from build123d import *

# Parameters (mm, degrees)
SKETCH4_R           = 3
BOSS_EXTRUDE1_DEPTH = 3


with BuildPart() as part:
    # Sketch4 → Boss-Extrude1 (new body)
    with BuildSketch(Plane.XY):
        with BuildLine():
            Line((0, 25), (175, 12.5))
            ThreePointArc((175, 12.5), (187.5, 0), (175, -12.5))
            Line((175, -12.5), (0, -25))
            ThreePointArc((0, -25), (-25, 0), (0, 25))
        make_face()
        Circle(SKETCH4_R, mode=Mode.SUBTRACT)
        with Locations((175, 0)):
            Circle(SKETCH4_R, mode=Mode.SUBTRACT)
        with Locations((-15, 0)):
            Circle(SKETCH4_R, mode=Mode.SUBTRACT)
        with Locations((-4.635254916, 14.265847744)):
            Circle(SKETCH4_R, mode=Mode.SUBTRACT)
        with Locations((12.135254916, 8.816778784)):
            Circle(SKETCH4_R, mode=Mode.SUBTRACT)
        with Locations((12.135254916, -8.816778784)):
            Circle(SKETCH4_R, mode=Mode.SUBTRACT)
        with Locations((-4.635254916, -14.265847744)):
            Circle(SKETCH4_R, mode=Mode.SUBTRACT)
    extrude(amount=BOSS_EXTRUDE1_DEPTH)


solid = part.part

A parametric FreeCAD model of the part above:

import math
import FreeCAD as App
import Part
import Sketcher

doc = App.newDocument("Part")
body = doc.addObject("PartDesign::Body", "Body")

sketch1 = body.newObject("Sketcher::SketchObject", "Sketch")
sketch1.AttachmentSupport = (doc.getObject("XY_Plane"), [""])
sketch1.MapMode = "FlatFace"
sketch1.addGeometry([
    Part.LineSegment(App.Vector(175, 12.5, 0), App.Vector(0, 25, 0)),
    Part.ArcOfCircle(Part.Circle(App.Vector(0, 0, 0), App.Vector(0, 0, 1), 25), math.radians(90), math.radians(270)),
    Part.LineSegment(App.Vector(0, -25, 0), App.Vector(175, -12.5, 0)),
    Part.ArcOfCircle(Part.Circle(App.Vector(175, 0, 0), App.Vector(0, 0, 1), 12.5), math.radians(-90), math.radians(90)),
    Part.Circle(App.Vector(-4.635255, -14.265848, 0), App.Vector(0, 0, 1), 3),
    Part.Circle(App.Vector(12.135255, -8.816779, 0), App.Vector(0, 0, 1), 3),
    Part.Circle(App.Vector(175, 0, 0), App.Vector(0, 0, 1), 3),
    Part.Circle(App.Vector(0, 0, 0), App.Vector(0, 0, 1), 3),
    Part.Circle(App.Vector(-15, 0, 0), App.Vector(0, 0, 1), 3),
    Part.Circle(App.Vector(12.135255, 8.816779, 0), App.Vector(0, 0, 1), 3),
    Part.Circle(App.Vector(-4.635255, 14.265848, 0), App.Vector(0, 0, 1), 3),
], False)
sketch1.addConstraint([
    Sketcher.Constraint("Coincident", 0, 2, 1, 1),
    Sketcher.Constraint("Coincident", 1, 2, 2, 1),
    Sketcher.Constraint("Coincident", 2, 2, 3, 1),
    Sketcher.Constraint("Coincident", 3, 2, 0, 1),
    Sketcher.Constraint("Coincident", 1, 3, -1, 1),
    Sketcher.Constraint("Coincident", 7, 3, -1, 1),
    Sketcher.Constraint("Coincident", 6, 3, 3, 3),
    Sketcher.Constraint("Equal", 4, 5),
    Sketcher.Constraint("Equal", 5, 6),
    Sketcher.Constraint("Equal", 6, 7),
    Sketcher.Constraint("Equal", 7, 8),
    Sketcher.Constraint("Equal", 8, 9),
    Sketcher.Constraint("Equal", 9, 10),
    Sketcher.Constraint("Symmetric", 5, 3, 9, 3, -1),
    Sketcher.Constraint("Symmetric", 4, 3, 10, 3, -1),
    Sketcher.Constraint("Symmetric", 2, 2, 3, 2, -1),
    Sketcher.Constraint("PointOnObject", 8, 3, -1),
    Sketcher.Constraint("PointOnObject", 0, 2, -2),
    Sketcher.Constraint("PointOnObject", 1, 2, -2),
    Sketcher.Constraint("Vertical", 6, 3, 2, 2),
    Sketcher.Constraint("Diameter", 4, 6.0),
    Sketcher.Constraint("Radius", 1, 25.0),
    Sketcher.Constraint("Radius", 3, 12.5),
    Sketcher.Constraint("DistanceX", -1, 1, 3, 3, 175.0),
    Sketcher.Constraint("DistanceX", 8, 3, -1, 1, 15.0),
    Sketcher.Constraint("DistanceY", 5, 3, -1, 1, 8.816779),
    Sketcher.Constraint("DistanceX", 4, 3, 5, 3, 16.77051),
    Sketcher.Constraint("DistanceY", 4, 3, 5, 3, 5.449069),
    Sketcher.Constraint("DistanceX", 4, 3, -1, 1, 4.635255),
])
pad1 = body.newObject("PartDesign::Pad", "Pad")
pad1.Profile = sketch1
pad1.Length = 3

doc.recompute()
